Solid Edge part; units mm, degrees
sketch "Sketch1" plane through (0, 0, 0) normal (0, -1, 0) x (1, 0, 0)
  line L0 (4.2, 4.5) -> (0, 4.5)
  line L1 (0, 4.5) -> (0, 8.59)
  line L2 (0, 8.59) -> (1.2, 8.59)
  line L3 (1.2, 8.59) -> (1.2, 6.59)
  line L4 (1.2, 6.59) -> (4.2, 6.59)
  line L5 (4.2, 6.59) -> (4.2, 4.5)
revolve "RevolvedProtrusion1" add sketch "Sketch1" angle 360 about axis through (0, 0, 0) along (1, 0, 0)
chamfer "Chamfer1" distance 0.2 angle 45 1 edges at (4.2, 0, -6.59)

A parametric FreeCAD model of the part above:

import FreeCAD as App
import Part
import Sketcher
from FreeCAD import Vector


def edges_at(feature, points):
    """Names of the edges that pass closest to the given points."""
    edges = feature.Shape.Edges
    near = lambda p: min(range(len(edges)), key=lambda i: edges[i].distToShape(Part.Vertex(*p))[0])
    return sorted({f"Edge{near(p) + 1}" for p in points})


def add_polygon(sketch, points):
    """Adds a closed chain of lines whose ends are joined by coincident constraints."""
    first, n = sketch.GeometryCount, len(points)
    for a, b in zip(points, points[1:] + points[:1]):
        sketch.addGeometry(Part.LineSegment(App.Vector(*a, 0), App.Vector(*b, 0)), False)
    for i in range(n):
        sketch.addConstraint(Sketcher.Constraint("Coincident", first + i, 2, first + (i + 1) % n, 1))

doc = App.newDocument("Part")
params = doc.addObject("Spreadsheet::Sheet", "Params")
for row, (alias, value) in enumerate([
    ("sketch1_width", "3 mm"),
    ("sketch1_height", "2 mm"),
    ("sketch1_width2", "4.2 mm"),
    ("sketch1_height2", "2.09 mm"),
    ("revolution_angle", "360 deg"),
    ("chamfer_size", "0.2 mm"),
], start=1):
    params.set(f"A{row}", alias)
    params.set(f"B{row}", "=" + value)
    params.setAlias(f"B{row}", alias)

body = doc.addObject("PartDesign::Body", "Body")

# Sketch on XZ plane
sketch1 = body.newObject("Sketcher::SketchObject", "Sketch")
sketch1.AttachmentSupport = (doc.getObject("XZ_Plane"), [""])
sketch1.MapMode = "FlatFace"
add_polygon(sketch1, [(0, 4.5), (4.2, 4.5), (4.2, 6.6), (1.2, 6.6), (1.2, 8.6), (0, 8.6)])  # lines 0-5
sketch1.addConstraint([
    Sketcher.Constraint("Horizontal", 0),
    Sketcher.Constraint("Vertical", 1),
    Sketcher.Constraint("Horizontal", 2),
    Sketcher.Constraint("Vertical", 3),
    Sketcher.Constraint("Horizontal", 4),
    Sketcher.Constraint("Vertical", 5),
    Sketcher.Constraint("PointOnObject", 4, 2, -2),
    Sketcher.Constraint("DistanceX", 2, 2, 2, 1, 3.0),
    Sketcher.Constraint("DistanceY", 3, 1, 3, 2, 2.0),
    Sketcher.Constraint("DistanceX", 0, 1, 0, 2, 4.2),
    Sketcher.Constraint("DistanceY", 1, 1, 1, 2, 2.09),
    Sketcher.Constraint("DistanceY", -1, 1, 0, 2, 4.5),
])
sketch1.setExpression("Constraints[13]", "Params.sketch1_width")
sketch1.setExpression("Constraints[14]", "Params.sketch1_height")
sketch1.setExpression("Constraints[15]", "Params.sketch1_width2")
sketch1.setExpression("Constraints[16]", "Params.sketch1_height2")
revolution = body.newObject("PartDesign::Revolution", "Revolution")
revolution.Profile = sketch1
revolution.ReferenceAxis = (sketch1, ["H_Axis"])
revolution.setExpression("Angle", "Params.revolution_angle")
doc.recompute()

chamfer = body.newObject("PartDesign::Chamfer", "Chamfer")
chamfer.Base = (revolution, edges_at(revolution, [(4.2, 0, -6.59)]))
chamfer.setExpression("Size", "Params.chamfer_size")

doc.recompute()
